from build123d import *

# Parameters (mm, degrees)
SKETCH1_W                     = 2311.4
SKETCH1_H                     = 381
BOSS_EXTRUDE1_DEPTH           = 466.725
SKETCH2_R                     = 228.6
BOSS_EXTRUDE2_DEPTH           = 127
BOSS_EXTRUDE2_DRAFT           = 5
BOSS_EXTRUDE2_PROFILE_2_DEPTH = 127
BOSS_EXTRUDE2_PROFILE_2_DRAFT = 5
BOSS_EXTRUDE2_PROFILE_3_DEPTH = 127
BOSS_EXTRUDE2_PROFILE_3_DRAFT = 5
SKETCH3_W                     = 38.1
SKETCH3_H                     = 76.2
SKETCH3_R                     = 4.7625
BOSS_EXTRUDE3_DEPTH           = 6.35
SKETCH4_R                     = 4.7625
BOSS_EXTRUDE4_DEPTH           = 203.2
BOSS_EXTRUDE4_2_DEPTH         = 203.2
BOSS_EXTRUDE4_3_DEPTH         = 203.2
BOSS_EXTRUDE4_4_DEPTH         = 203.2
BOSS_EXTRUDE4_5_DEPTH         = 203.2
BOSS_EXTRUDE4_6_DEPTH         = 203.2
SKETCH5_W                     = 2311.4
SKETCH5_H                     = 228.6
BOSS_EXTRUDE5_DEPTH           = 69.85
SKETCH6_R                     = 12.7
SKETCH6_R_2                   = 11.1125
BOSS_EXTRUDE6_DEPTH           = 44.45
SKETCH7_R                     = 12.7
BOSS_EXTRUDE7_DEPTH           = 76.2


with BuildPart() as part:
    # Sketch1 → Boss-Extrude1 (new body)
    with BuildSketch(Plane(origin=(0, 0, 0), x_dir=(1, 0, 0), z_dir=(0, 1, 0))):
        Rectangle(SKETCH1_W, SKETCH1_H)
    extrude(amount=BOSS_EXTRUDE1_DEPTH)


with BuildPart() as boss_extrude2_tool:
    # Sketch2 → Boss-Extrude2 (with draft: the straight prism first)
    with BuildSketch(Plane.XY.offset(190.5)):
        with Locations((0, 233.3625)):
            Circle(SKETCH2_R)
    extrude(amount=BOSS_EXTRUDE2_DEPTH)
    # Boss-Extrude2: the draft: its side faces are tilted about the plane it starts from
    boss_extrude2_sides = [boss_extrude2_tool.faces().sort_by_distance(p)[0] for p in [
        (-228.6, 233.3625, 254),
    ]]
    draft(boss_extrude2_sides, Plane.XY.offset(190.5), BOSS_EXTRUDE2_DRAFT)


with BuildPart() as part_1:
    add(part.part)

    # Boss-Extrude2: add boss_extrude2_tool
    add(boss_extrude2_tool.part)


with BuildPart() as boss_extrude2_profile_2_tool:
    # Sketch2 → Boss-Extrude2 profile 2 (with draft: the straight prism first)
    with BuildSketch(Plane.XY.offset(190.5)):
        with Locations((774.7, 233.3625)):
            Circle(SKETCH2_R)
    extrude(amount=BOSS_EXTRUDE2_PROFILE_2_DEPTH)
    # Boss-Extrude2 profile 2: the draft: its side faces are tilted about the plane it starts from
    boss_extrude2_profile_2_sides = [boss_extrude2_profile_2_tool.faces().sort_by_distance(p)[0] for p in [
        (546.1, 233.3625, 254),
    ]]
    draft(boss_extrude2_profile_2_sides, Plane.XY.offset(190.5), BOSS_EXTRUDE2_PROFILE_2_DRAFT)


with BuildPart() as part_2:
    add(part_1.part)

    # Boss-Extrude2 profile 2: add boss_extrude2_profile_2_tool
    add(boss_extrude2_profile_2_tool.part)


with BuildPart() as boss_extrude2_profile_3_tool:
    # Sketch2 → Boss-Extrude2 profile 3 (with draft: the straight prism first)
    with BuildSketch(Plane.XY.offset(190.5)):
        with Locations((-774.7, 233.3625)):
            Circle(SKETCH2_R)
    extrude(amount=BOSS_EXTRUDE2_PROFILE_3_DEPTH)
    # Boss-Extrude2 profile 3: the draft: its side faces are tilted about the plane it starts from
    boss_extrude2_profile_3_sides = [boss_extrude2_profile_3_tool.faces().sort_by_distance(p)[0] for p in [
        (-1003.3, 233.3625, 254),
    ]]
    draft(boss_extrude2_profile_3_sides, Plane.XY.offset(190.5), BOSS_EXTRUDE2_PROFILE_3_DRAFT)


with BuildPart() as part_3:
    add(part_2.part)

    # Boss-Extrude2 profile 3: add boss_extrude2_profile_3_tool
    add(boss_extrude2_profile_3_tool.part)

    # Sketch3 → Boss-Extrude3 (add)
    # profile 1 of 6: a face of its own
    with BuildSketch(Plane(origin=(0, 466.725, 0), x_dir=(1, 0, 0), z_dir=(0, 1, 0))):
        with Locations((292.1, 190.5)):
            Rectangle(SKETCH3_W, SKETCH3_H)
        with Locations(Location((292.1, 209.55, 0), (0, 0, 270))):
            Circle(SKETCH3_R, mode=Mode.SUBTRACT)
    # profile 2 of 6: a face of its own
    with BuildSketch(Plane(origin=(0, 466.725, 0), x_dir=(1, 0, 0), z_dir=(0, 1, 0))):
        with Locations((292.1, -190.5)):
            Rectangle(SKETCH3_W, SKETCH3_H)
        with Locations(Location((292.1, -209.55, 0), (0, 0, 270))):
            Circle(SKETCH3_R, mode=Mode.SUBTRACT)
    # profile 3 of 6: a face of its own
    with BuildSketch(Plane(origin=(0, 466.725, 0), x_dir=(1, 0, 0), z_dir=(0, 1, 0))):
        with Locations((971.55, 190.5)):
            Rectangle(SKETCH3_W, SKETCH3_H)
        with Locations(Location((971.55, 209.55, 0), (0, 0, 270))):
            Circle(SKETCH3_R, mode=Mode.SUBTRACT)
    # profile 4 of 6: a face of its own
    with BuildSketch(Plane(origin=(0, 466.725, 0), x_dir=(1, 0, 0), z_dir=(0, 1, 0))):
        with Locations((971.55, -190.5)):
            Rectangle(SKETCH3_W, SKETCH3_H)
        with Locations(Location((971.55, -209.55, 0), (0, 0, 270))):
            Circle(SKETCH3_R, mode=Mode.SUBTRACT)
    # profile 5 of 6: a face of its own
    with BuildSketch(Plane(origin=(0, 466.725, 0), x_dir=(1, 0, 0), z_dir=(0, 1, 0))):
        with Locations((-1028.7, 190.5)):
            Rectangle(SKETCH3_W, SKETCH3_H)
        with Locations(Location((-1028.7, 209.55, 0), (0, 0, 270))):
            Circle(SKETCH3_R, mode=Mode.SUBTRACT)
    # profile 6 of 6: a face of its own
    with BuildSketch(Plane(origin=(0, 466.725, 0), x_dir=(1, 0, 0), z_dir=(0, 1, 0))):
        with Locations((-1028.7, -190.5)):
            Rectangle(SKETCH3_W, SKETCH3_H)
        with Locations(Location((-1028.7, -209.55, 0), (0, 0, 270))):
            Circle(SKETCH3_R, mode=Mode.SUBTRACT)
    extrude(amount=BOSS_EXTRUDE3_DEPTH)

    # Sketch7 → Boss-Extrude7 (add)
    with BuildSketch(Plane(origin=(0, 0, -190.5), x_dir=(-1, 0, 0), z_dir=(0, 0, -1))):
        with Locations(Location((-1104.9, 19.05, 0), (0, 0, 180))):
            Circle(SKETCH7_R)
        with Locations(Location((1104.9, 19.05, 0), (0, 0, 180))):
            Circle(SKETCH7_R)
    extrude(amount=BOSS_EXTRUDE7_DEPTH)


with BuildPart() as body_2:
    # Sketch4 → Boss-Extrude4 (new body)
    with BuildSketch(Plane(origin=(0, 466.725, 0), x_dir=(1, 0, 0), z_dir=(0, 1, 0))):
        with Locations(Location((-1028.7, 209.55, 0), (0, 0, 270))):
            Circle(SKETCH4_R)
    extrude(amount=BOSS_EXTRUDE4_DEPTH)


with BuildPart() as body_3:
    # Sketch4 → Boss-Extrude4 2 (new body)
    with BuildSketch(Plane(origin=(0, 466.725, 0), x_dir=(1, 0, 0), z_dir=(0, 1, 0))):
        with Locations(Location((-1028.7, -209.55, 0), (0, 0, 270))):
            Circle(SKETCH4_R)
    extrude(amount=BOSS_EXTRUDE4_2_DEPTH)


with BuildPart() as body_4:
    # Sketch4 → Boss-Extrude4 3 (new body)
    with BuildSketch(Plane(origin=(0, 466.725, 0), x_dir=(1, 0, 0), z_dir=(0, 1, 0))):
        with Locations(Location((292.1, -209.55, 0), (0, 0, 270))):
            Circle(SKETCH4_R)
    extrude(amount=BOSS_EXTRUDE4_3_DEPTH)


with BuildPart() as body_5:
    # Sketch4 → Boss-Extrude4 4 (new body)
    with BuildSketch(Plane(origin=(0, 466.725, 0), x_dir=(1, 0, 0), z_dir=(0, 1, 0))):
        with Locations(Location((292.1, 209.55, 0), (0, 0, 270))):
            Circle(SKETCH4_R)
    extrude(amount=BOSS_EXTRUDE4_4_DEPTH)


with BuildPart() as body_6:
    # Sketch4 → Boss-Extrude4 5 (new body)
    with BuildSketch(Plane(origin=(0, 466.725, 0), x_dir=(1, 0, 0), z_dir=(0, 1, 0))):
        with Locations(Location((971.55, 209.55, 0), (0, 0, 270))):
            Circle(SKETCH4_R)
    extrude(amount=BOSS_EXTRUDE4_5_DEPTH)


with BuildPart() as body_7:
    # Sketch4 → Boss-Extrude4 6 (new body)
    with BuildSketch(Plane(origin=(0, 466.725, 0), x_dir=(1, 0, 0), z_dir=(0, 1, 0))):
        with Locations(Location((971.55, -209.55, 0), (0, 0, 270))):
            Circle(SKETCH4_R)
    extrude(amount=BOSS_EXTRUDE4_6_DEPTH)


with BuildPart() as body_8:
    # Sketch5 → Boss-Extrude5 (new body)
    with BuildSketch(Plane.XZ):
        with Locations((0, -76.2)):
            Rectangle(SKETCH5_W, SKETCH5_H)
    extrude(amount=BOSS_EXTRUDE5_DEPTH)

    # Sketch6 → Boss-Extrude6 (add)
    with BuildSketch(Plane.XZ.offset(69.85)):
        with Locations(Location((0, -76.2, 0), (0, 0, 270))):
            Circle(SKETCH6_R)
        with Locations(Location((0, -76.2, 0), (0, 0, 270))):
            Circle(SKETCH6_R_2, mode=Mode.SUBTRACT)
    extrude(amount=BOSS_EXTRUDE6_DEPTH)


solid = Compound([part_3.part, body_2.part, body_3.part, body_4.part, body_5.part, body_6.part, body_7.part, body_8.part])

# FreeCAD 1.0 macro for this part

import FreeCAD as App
import Part
import Sketcher
Q = App.Units.Quantity


def faces_at(feature, points):
    """Names of the faces that lie closest to the given points."""
    faces = feature.Shape.Faces
    near = lambda p: min(range(len(faces)), key=lambda i: faces[i].distToShape(Part.Vertex(*p))[0])
    return sorted({f"Face{near(p) + 1}" for p in points})

doc = App.newDocument("Part")
body = doc.addObject("PartDesign::Body", "Body")

# Sketch on XZ plane
sketch1 = doc.addObject("Sketcher::SketchObject", "Sketch")
body.addObject(sketch1)
sketch1.AttachmentSupport = (doc.XZ_Plane, [""])
sketch1.MapMode = "FlatFace"
sketch1.addGeometry(Part.LineSegment(App.Vector(-1156, -190, 0), App.Vector(-1156, 190, 0)), False)
sketch1.addGeometry(Part.LineSegment(App.Vector(-1156, 190, 0), App.Vector(1156, 190, 0)), False)
sketch1.addGeometry(Part.LineSegment(App.Vector(1156, 190, 0), App.Vector(1156, -190, 0)), False)
sketch1.addGeometry(Part.LineSegment(App.Vector(1156, -190, 0), App.Vector(-1156, -190, 0)), False)
sketch1.addConstraint(Sketcher.Constraint("Coincident", 0, 2, 1, 1))
sketch1.addConstraint(Sketcher.Constraint("Coincident", 1, 2, 2, 1))
sketch1.addConstraint(Sketcher.Constraint("Coincident", 2, 2, 3, 1))
sketch1.addConstraint(Sketcher.Constraint("Coincident", 3, 2, 0, 1))
sketch1.addConstraint(Sketcher.Constraint("Vertical", 0))
sketch1.addConstraint(Sketcher.Constraint("Horizontal", 1))
sketch1.addConstraint(Sketcher.Constraint("Vertical", 2))
sketch1.addConstraint(Sketcher.Constraint("Horizontal", 3))
sketch1.addConstraint(Sketcher.Constraint("Symmetric", 0, 2, 2, 2, -1, 1))
sketch1.addConstraint(Sketcher.Constraint("DistanceX", 1, 1, 1, 2, Q("91 in")))
sketch1.addConstraint(Sketcher.Constraint("DistanceY", 0, 1, 0, 2, Q("15 in")))
pad1 = doc.addObject("PartDesign::Pad", "Pad")
body.addObject(pad1)
pad1.Profile = sketch1
pad1.Length = Q("18.375 in")
pad1.Reversed = True
body2 = doc.addObject("PartDesign::Body", "Body001")

# Sketch on XY plane
sketch2 = doc.addObject("Sketcher::SketchObject", "Sketch001")
body2.addObject(sketch2)
sketch2.AttachmentSupport = (doc.getObject("XY_Plane001"), [""])
sketch2.MapMode = "FlatFace"
sketch2.AttachmentOffset = App.Placement(App.Vector(0, 0, 7.5 * 25.4), App.Rotation())
sketch2.addGeometry(Part.Circle(App.Vector(0, 233, 0), App.Vector(0, 0, 1), 229), False)
sketch2.addConstraint(Sketcher.Constraint("PointOnObject", 0, 3, -2))
sketch2.addConstraint(Sketcher.Constraint("Diameter", 0, Q("18 in")))
sketch2.addConstraint(Sketcher.Constraint("DistanceY", -1, 1, 0, 3, Q("9.1875 in")))
pad2 = doc.addObject("PartDesign::Pad", "Pad001")
body2.addObject(pad2)
pad2.Profile = sketch2
pad2.Length = Q("5 in")
doc.recompute()

datumplane = doc.addObject("PartDesign::Plane", "DatumPlane")
body2.addObject(datumplane)
datumplane.AttachmentSupport = (doc.getObject("XY_Plane001"), [""])
datumplane.MapMode = "FlatFace"
datumplane.AttachmentOffset = App.Placement(App.Vector(0, 0, 7.5 * 25.4), App.Rotation())
draft = doc.addObject("PartDesign::Draft", "Draft")
body2.addObject(draft)
draft.Base = (pad2, faces_at(pad2, [(-228.6, 233.363, 254)]))
draft.NeutralPlane = (datumplane, [""])
draft.Angle = 5
draft.Reversed = False
doc.recompute()

boolean = doc.addObject("PartDesign::Boolean", "Boolean")
body.addObject(boolean)
boolean.Type = "Fuse"
boolean.addObjects([body2])
body3 = doc.addObject("PartDesign::Body", "Body002")

# Sketch on XY plane
sketch3 = doc.addObject("Sketcher::SketchObject", "Sketch002")
body3.addObject(sketch3)
sketch3.AttachmentSupport = (doc.getObject("XY_Plane002"), [""])
sketch3.MapMode = "FlatFace"
sketch3.AttachmentOffset = App.Placement(App.Vector(0, 0, 7.5 * 25.4), App.Rotation())
sketch3.addGeometry(Part.Circle(App.Vector(775, 233, 0), App.Vector(0, 0, 1), 229), False)
sketch3.addConstraint(Sketcher.Constraint("Diameter", 0, Q("18 in")))
sketch3.addConstraint(Sketcher.Constraint("DistanceX", -1, 1, 0, 3, Q("30.5 in")))
sketch3.addConstraint(Sketcher.Constraint("DistanceY", -1, 1, 0, 3, Q("9.1875 in")))
pad3 = doc.addObject("PartDesign::Pad", "Pad002")
body3.addObject(pad3)
pad3.Profile = sketch3
pad3.Length = Q("5 in")
doc.recompute()

datumplane2 = doc.addObject("PartDesign::Plane", "DatumPlane001")
body3.addObject(datumplane2)
datumplane2.AttachmentSupport = (doc.getObject("XY_Plane002"), [""])
datumplane2.MapMode = "FlatFace"
datumplane2.AttachmentOffset = App.Placement(App.Vector(0, 0, 7.5 * 25.4), App.Rotation())
draft2 = doc.addObject("PartDesign::Draft", "Draft001")
body3.addObject(draft2)
draft2.Base = (pad3, faces_at(pad3, [(546.1, 233.363, 254)]))
draft2.NeutralPlane = (datumplane2, [""])
draft2.Angle = 5
draft2.Reversed = False
doc.recompute()

boolean2 = doc.addObject("PartDesign::Boolean", "Boolean001")
body.addObject(boolean2)
boolean2.Type = "Fuse"
boolean2.addObjects([body3])
body4 = doc.addObject("PartDesign::Body", "Body003")

# Sketch on XY plane
sketch4 = doc.addObject("Sketcher::SketchObject", "Sketch003")
body4.addObject(sketch4)
sketch4.AttachmentSupport = (doc.getObject("XY_Plane003"), [""])
sketch4.MapMode = "FlatFace"
sketch4.AttachmentOffset = App.Placement(App.Vector(0, 0, 7.5 * 25.4), App.Rotation())
sketch4.addGeometry(Part.Circle(App.Vector(-775, 233, 0), App.Vector(0, 0, 1), 229), False)
sketch4.addConstraint(Sketcher.Constraint("Diameter", 0, Q("18 in")))
sketch4.addConstraint(Sketcher.Constraint("DistanceX", 0, 3, -1, 1, Q("30.5 in")))
sketch4.addConstraint(Sketcher.Constraint("DistanceY", -1, 1, 0, 3, Q("9.1875 in")))
pad4 = doc.addObject("PartDesign::Pad", "Pad003")
body4.addObject(pad4)
pad4.Profile = sketch4
pad4.Length = Q("5 in")
doc.recompute()

datumplane3 = doc.addObject("PartDesign::Plane", "DatumPlane002")
body4.addObject(datumplane3)
datumplane3.AttachmentSupport = (doc.getObject("XY_Plane003"), [""])
datumplane3.MapMode = "FlatFace"
datumplane3.AttachmentOffset = App.Placement(App.Vector(0, 0, 7.5 * 25.4), App.Rotation())
draft3 = doc.addObject("PartDesign::Draft", "Draft002")
body4.addObject(draft3)
draft3.Base = (pad4, faces_at(pad4, [(-1003.3, 233.363, 254)]))
draft3.NeutralPlane = (datumplane3, [""])
draft3.Angle = 5
draft3.Reversed = False
doc.recompute()

boolean3 = doc.addObject("PartDesign::Boolean", "Boolean002")
body.addObject(boolean3)
boolean3.Type = "Fuse"
boolean3.addObjects([body4])

# Sketch on XZ plane
sketch5 = doc.addObject("Sketcher::SketchObject", "Sketch004")
body.addObject(sketch5)
sketch5.AttachmentSupport = (doc.XZ_Plane, [""])
sketch5.MapMode = "FlatFace"
sketch5.AttachmentOffset = App.Placement(App.Vector(0, 0, -18.375 * 25.4), App.Rotation())
sketch5.addGeometry(Part.LineSegment(App.Vector(273.1, -228.6, 0), App.Vector(273.1, -152.4, 0)), False)
sketch5.addGeometry(Part.LineSegment(App.Vector(273.1, -152.4, 0), App.Vector(311.1, -152.4, 0)), False)
sketch5.addGeometry(Part.LineSegment(App.Vector(311.1, -152.4, 0), App.Vector(311.1, -228.6, 0)), False)
sketch5.addGeometry(Part.LineSegment(App.Vector(311.1, -228.6, 0), App.Vector(273.1, -228.6, 0)), False)
sketch5.addGeometry(Part.Circle(App.Vector(292.1, -209.6, 0), App.Vector(0, 0, 1), 4.8), False)
sketch5.addGeometry(Part.LineSegment(App.Vector(273.1, 152.4, 0), App.Vector(273.1, 228.6, 0)), False)
sketch5.addGeometry(Part.LineSegment(App.Vector(273.1, 228.6, 0), App.Vector(311.1, 228.6, 0)), False)
sketch5.addGeometry(Part.LineSegment(App.Vector(311.1, 228.6, 0), App.Vector(311.1, 152.4, 0)), False)
sketch5.addGeometry(Part.LineSegment(App.Vector(311.1, 152.4, 0), App.Vector(273.1, 152.4, 0)), False)
sketch5.addGeometry(Part.Circle(App.Vector(292.1, 209.6, 0), App.Vector(0, 0, 1), 4.8), False)
sketch5.addGeometry(Part.LineSegment(App.Vector(952.5, -228.6, 0), App.Vector(952.5, -152.4, 0)), False)
sketch5.addGeometry(Part.LineSegment(App.Vector(952.5, -152.4, 0), App.Vector(990.6, -152.4, 0)), False)
sketch5.addGeometry(Part.LineSegment(App.Vector(990.6, -152.4, 0), App.Vector(990.6, -228.6, 0)), False)
sketch5.addGeometry(Part.LineSegment(App.Vector(990.6, -228.6, 0), App.Vector(952.5, -228.6, 0)), False)
sketch5.addGeometry(Part.Circle(App.Vector(971.5, -209.6, 0), App.Vector(0, 0, 1), 4.8), False)
sketch5.addGeometry(Part.LineSegment(App.Vector(952.5, 152.4, 0), App.Vector(952.5, 228.6, 0)), False)
sketch5.addGeometry(Part.LineSegment(App.Vector(952.5, 228.6, 0), App.Vector(990.6, 228.6, 0)), False)
sketch5.addGeometry(Part.LineSegment(App.Vector(990.6, 228.6, 0), App.Vector(990.6, 152.4, 0)), False)
sketch5.addGeometry(Part.LineSegment(App.Vector(990.6, 152.4, 0), App.Vector(952.5, 152.4, 0)), False)
sketch5.addGeometry(Part.Circle(App.Vector(971.5, 209.6, 0), App.Vector(0, 0, 1), 4.8), False)
sketch5.addGeometry(Part.LineSegment(App.Vector(-1047.8, -228.6, 0), App.Vector(-1047.8, -152.4, 0)), False)
sketch5.addGeometry(Part.LineSegment(App.Vector(-1047.8, -152.4, 0), App.Vector(-1009.6, -152.4, 0)), False)
sketch5.addGeometry(Part.LineSegment(App.Vector(-1009.6, -152.4, 0), App.Vector(-1009.6, -228.6, 0)), False)
sketch5.addGeometry(Part.LineSegment(App.Vector(-1009.6, -228.6, 0), App.Vector(-1047.8, -228.6, 0)), False)
sketch5.addGeometry(Part.Circle(App.Vector(-1028.7, -209.6, 0), App.Vector(0, 0, 1), 4.8), False)
sketch5.addGeometry(Part.LineSegment(App.Vector(-1047.8, 152.4, 0), App.Vector(-1047.8, 228.6, 0)), False)
sketch5.addGeometry(Part.LineSegment(App.Vector(-1047.8, 228.6, 0), App.Vector(-1009.6, 228.6, 0)), False)
sketch5.addGeometry(Part.LineSegment(App.Vector(-1009.6, 228.6, 0), App.Vector(-1009.6, 152.4, 0)), False)
sketch5.addGeometry(Part.LineSegment(App.Vector(-1009.6, 152.4, 0), App.Vector(-1047.8, 152.4, 0)), False)
sketch5.addGeometry(Part.Circle(App.Vector(-1028.7, 209.6, 0), App.Vector(0, 0, 1), 4.8), False)
sketch5.addConstraint(Sketcher.Constraint("Coincident", 0, 2, 1, 1))
sketch5.addConstraint(Sketcher.Constraint("Coincident", 1, 2, 2, 1))
sketch5.addConstraint(Sketcher.Constraint("Coincident", 2, 2, 3, 1))
sketch5.addConstraint(Sketcher.Constraint("Coincident", 3, 2, 0, 1))
sketch5.addConstraint(Sketcher.Constraint("Coincident", 5, 2, 6, 1))
sketch5.addConstraint(Sketcher.Constraint("Coincident", 6, 2, 7, 1))
sketch5.addConstraint(Sketcher.Constraint("Coincident", 7, 2, 8, 1))
sketch5.addConstraint(Sketcher.Constraint("Coincident", 8, 2, 5, 1))
sketch5.addConstraint(Sketcher.Constraint("Coincident", 10, 2, 11, 1))
sketch5.addConstraint(Sketcher.Constraint("Coincident", 11, 2, 12, 1))
sketch5.addConstraint(Sketcher.Constraint("Coincident", 12, 2, 13, 1))
sketch5.addConstraint(Sketcher.Constraint("Coincident", 13, 2, 10, 1))
sketch5.addConstraint(Sketcher.Constraint("Coincident", 15, 2, 16, 1))
sketch5.addConstraint(Sketcher.Constraint("Coincident", 16, 2, 17, 1))
sketch5.addConstraint(Sketcher.Constraint("Coincident", 17, 2, 18, 1))
sketch5.addConstraint(Sketcher.Constraint("Coincident", 18, 2, 15, 1))
sketch5.addConstraint(Sketcher.Constraint("Coincident", 20, 2, 21, 1))
sketch5.addConstraint(Sketcher.Constraint("Coincident", 21, 2, 22, 1))
sketch5.addConstraint(Sketcher.Constraint("Coincident", 22, 2, 23, 1))
sketch5.addConstraint(Sketcher.Constraint("Coincident", 23, 2, 20, 1))
sketch5.addConstraint(Sketcher.Constraint("Coincident", 25, 2, 26, 1))
sketch5.addConstraint(Sketcher.Constraint("Coincident", 26, 2, 27, 1))
sketch5.addConstraint(Sketcher.Constraint("Coincident", 27, 2, 28, 1))
sketch5.addConstraint(Sketcher.Constraint("Coincident", 28, 2, 25, 1))
sketch5.addConstraint(Sketcher.Constraint("Vertical", 0))
sketch5.addConstraint(Sketcher.Constraint("Horizontal", 1))
sketch5.addConstraint(Sketcher.Constraint("Vertical", 2))
sketch5.addConstraint(Sketcher.Constraint("Horizontal", 3))
sketch5.addConstraint(Sketcher.Constraint("Vertical", 5))
sketch5.addConstraint(Sketcher.Constraint("Horizontal", 6))
sketch5.addConstraint(Sketcher.Constraint("Vertical", 7))
sketch5.addConstraint(Sketcher.Constraint("Horizontal", 8))
sketch5.addConstraint(Sketcher.Constraint("Vertical", 10))
sketch5.addConstraint(Sketcher.Constraint("Horizontal", 11))
sketch5.addConstraint(Sketcher.Constraint("Vertical", 12))
sketch5.addConstraint(Sketcher.Constraint("Horizontal", 13))
sketch5.addConstraint(Sketcher.Constraint("Vertical", 15))
sketch5.addConstraint(Sketcher.Constraint("Horizontal", 16))
sketch5.addConstraint(Sketcher.Constraint("Vertical", 17))
sketch5.addConstraint(Sketcher.Constraint("Horizontal", 18))
sketch5.addConstraint(Sketcher.Constraint("Vertical", 20))
sketch5.addConstraint(Sketcher.Constraint("Horizontal", 21))
sketch5.addConstraint(Sketcher.Constraint("Vertical", 22))
sketch5.addConstraint(Sketcher.Constraint("Horizontal", 23))
sketch5.addConstraint(Sketcher.Constraint("Vertical", 25))
sketch5.addConstraint(Sketcher.Constraint("Horizontal", 26))
sketch5.addConstraint(Sketcher.Constraint("Vertical", 27))
sketch5.addConstraint(Sketcher.Constraint("Horizontal", 28))
sketch5.addConstraint(Sketcher.Constraint("Equal", 4, 9))
sketch5.addConstraint(Sketcher.Constraint("Equal", 9, 14))
sketch5.addConstraint(Sketcher.Constraint("Equal", 14, 19))
sketch5.addConstraint(Sketcher.Constraint("Equal", 19, 24))
sketch5.addConstraint(Sketcher.Constraint("Equal", 24, 29))
sketch5.addConstraint(Sketcher.Constraint("Symmetric", 4, 3, 9, 3, -1))
sketch5.addConstraint(Sketcher.Constraint("Symmetric", 14, 3, 19, 3, -1))
sketch5.addConstraint(Sketcher.Constraint("Symmetric", 24, 3, 29, 3, -1))
sketch5.addConstraint(Sketcher.Constraint("Symmetric", 3, 2, 5, 2, -1))
sketch5.addConstraint(Sketcher.Constraint("Symmetric", 1, 2, 7, 2, -1))
sketch5.addConstraint(Sketcher.Constraint("Symmetric", 13, 2, 15, 2, -1))
sketch5.addConstraint(Sketcher.Constraint("Symmetric", 11, 2, 17, 2, -1))
sketch5.addConstraint(Sketcher.Constraint("Symmetric", 23, 2, 25, 2, -1))
sketch5.addConstraint(Sketcher.Constraint("Symmetric", 21, 2, 27, 2, -1))
sketch5.addConstraint(Sketcher.Constraint("Horizontal", 4, 3, 14, 3))
sketch5.addConstraint(Sketcher.Constraint("Horizontal", 14, 3, 24, 3))
sketch5.addConstraint(Sketcher.Constraint("Horizontal", 1, 2, 10, 2))
sketch5.addConstraint(Sketcher.Constraint("Horizontal", 3, 2, 12, 2))
sketch5.addConstraint(Sketcher.Constraint("Horizontal", 11, 2, 20, 2))
sketch5.addConstraint(Sketcher.Constraint("Horizontal", 13, 2, 22, 2))
sketch5.addConstraint(Sketcher.Constraint("Equal", 8, 11))
sketch5.addConstraint(Sketcher.Constraint("Equal", 18, 21))
sketch5.addConstraint(Sketcher.Constraint("DistanceY", 0, 1, 0, 2, Q("3 in")))
sketch5.addConstraint(Sketcher.Constraint("Diameter", 4, Q("0.375 in")))
sketch5.addConstraint(Sketcher.Constraint("DistanceX", 1, 1, 1, 2, Q("1.5 in")))
sketch5.addConstraint(Sketcher.Constraint("DistanceY", 0, 2, -1, 1, Q("6 in")))
sketch5.addConstraint(Sketcher.Constraint("DistanceX", -1, 1, 11, 2, Q("39 in")))
sketch5.addConstraint(Sketcher.Constraint("DistanceX", 24, 3, 4, 3, Q("52 in")))
sketch5.addConstraint(Sketcher.Constraint("DistanceX", 1, 2, 14, 3, Q("26 in")))
sketch5.addConstraint(Sketcher.Constraint("DistanceX", 4, 3, 10, 2, Q("26 in")))
sketch5.addConstraint(Sketcher.Constraint("DistanceX", 20, 2, 0, 2, Q("52 in")))
sketch5.addConstraint(Sketcher.Constraint("DistanceY", 4, 3, 9, 3, Q("16.5 in")))
sketch5.addConstraint(Sketcher.Constraint("DistanceX", -1, 1, 14, 3, Q("38.25 in")))
pad5 = doc.addObject("PartDesign::Pad", "Pad004")
body.addObject(pad5)
pad5.Profile = sketch5
pad5.Length = Q("0.25 in")
pad5.Reversed = True

# Sketch on XY plane
sketch6 = doc.addObject("Sketcher::SketchObject", "Sketch005")
body.addObject(sketch6)
sketch6.AttachmentSupport = (doc.XY_Plane, [""])
sketch6.MapMode = "FlatFace"
sketch6.AttachmentOffset = App.Placement(App.Vector(0, 0, -7.5 * 25.4), App.Rotation())
sketch6.addGeometry(Part.Circle(App.Vector(1105, 19, 0), App.Vector(0, 0, 1), 13), False)
sketch6.addGeometry(Part.Circle(App.Vector(-1105, 19, 0), App.Vector(0, 0, 1), 13), False)
sketch6.addConstraint(Sketcher.Constraint("Equal", 0, 1))
sketch6.addConstraint(Sketcher.Constraint("Symmetric", 0, 3, 1, 3, -2))
sketch6.addConstraint(Sketcher.Constraint("Diameter", 0, Q("1 in")))
sketch6.addConstraint(Sketcher.Constraint("DistanceX", 1, 3, 0, 3, Q("87 in")))
sketch6.addConstraint(Sketcher.Constraint("DistanceY", -1, 1, 0, 3, Q("0.75 in")))
pad6 = doc.addObject("PartDesign::Pad", "Pad005")
body.addObject(pad6)
pad6.Profile = sketch6
pad6.Length = Q("3 in")
pad6.Reversed = True
body5 = doc.addObject("PartDesign::Body", "Body004")

# Sketch on XZ plane
sketch7 = doc.addObject("Sketcher::SketchObject", "Sketch006")
body5.addObject(sketch7)
sketch7.AttachmentSupport = (doc.getObject("XZ_Plane004"), [""])
sketch7.MapMode = "FlatFace"
sketch7.AttachmentOffset = App.Placement(App.Vector(0, 0, -18.375 * 25.4), App.Rotation())
sketch7.addGeometry(Part.Circle(App.Vector(-1028.7, -209.6, 0), App.Vector(0, 0, 1), 4.8), False)
sketch7.addConstraint(Sketcher.Constraint("Diameter", 0, Q("0.375 in")))
sketch7.addConstraint(Sketcher.Constraint("DistanceX", 0, 3, -1, 1, Q("40.5 in")))
sketch7.addConstraint(Sketcher.Constraint("DistanceY", 0, 3, -1, 1, Q("8.25 in")))
pad7 = doc.addObject("PartDesign::Pad", "Pad006")
body5.addObject(pad7)
pad7.Profile = sketch7
pad7.Length = Q("8 in")
pad7.Reversed = True
body6 = doc.addObject("PartDesign::Body", "Body005")

# Sketch on XZ plane
sketch8 = doc.addObject("Sketcher::SketchObject", "Sketch007")
body6.addObject(sketch8)
sketch8.AttachmentSupport = (doc.getObject("XZ_Plane005"), [""])
sketch8.MapMode = "FlatFace"
sketch8.AttachmentOffset = App.Placement(App.Vector(0, 0, -18.375 * 25.4), App.Rotation())
sketch8.addGeometry(Part.Circle(App.Vector(-1028.7, 209.6, 0), App.Vector(0, 0, 1), 4.8), False)
sketch8.addConstraint(Sketcher.Constraint("Diameter", 0, Q("0.375 in")))
sketch8.addConstraint(Sketcher.Constraint("DistanceX", 0, 3, -1, 1, Q("40.5 in")))
sketch8.addConstraint(Sketcher.Constraint("DistanceY", -1, 1, 0, 3, Q("8.25 in")))
pad8 = doc.addObject("PartDesign::Pad", "Pad007")
body6.addObject(pad8)
pad8.Profile = sketch8
pad8.Length = Q("8 in")
pad8.Reversed = True
body7 = doc.addObject("PartDesign::Body", "Body006")

# Sketch on XZ plane
sketch9 = doc.addObject("Sketcher::SketchObject", "Sketch008")
body7.addObject(sketch9)
sketch9.AttachmentSupport = (doc.getObject("XZ_Plane006"), [""])
sketch9.MapMode = "FlatFace"
sketch9.AttachmentOffset = App.Placement(App.Vector(0, 0, -18.375 * 25.4), App.Rotation())
sketch9.addGeometry(Part.Circle(App.Vector(292.1, 209.6, 0), App.Vector(0, 0, 1), 4.8), False)
sketch9.addConstraint(Sketcher.Constraint("Diameter", 0, Q("0.375 in")))
sketch9.addConstraint(Sketcher.Constraint("DistanceX", -1, 1, 0, 3, Q("11.5 in")))
sketch9.addConstraint(Sketcher.Constraint("DistanceY", -1, 1, 0, 3, Q("8.25 in")))
pad9 = doc.addObject("PartDesign::Pad", "Pad008")
body7.addObject(pad9)
pad9.Profile = sketch9
pad9.Length = Q("8 in")
pad9.Reversed = True
body8 = doc.addObject("PartDesign::Body", "Body007")

# Sketch on XZ plane
sketch10 = doc.addObject("Sketcher::SketchObject", "Sketch009")
body8.addObject(sketch10)
sketch10.AttachmentSupport = (doc.getObject("XZ_Plane007"), [""])
sketch10.MapMode = "FlatFace"
sketch10.AttachmentOffset = App.Placement(App.Vector(0, 0, -18.375 * 25.4), App.Rotation())
sketch10.addGeometry(Part.Circle(App.Vector(292.1, -209.6, 0), App.Vector(0, 0, 1), 4.8), False)
sketch10.addConstraint(Sketcher.Constraint("Diameter", 0, Q("0.375 in")))
sketch10.addConstraint(Sketcher.Constraint("DistanceX", -1, 1, 0, 3, Q("11.5 in")))
sketch10.addConstraint(Sketcher.Constraint("DistanceY", 0, 3, -1, 1, Q("8.25 in")))
pad10 = doc.addObject("PartDesign::Pad", "Pad009")
body8.addObject(pad10)
pad10.Profile = sketch10
pad10.Length = Q("8 in")
pad10.Reversed = True
body9 = doc.addObject("PartDesign::Body", "Body008")

# Sketch on XZ plane
sketch11 = doc.addObject("Sketcher::SketchObject", "Sketch010")
body9.addObject(sketch11)
sketch11.AttachmentSupport = (doc.getObject("XZ_Plane008"), [""])
sketch11.MapMode = "FlatFace"
sketch11.AttachmentOffset = App.Placement(App.Vector(0, 0, -18.375 * 25.4), App.Rotation())
sketch11.addGeometry(Part.Circle(App.Vector(971.5, -209.6, 0), App.Vector(0, 0, 1), 4.8), False)
sketch11.addConstraint(Sketcher.Constraint("Diameter", 0, Q("0.375 in")))
sketch11.addConstraint(Sketcher.Constraint("DistanceX", -1, 1, 0, 3, Q("38.25 in")))
sketch11.addConstraint(Sketcher.Constraint("DistanceY", 0, 3, -1, 1, Q("8.25 in")))
pad11 = doc.addObject("PartDesign::Pad", "Pad010")
body9.addObject(pad11)
pad11.Profile = sketch11
pad11.Length = Q("8 in")
pad11.Reversed = True
body10 = doc.addObject("PartDesign::Body", "Body009")

# Sketch on XZ plane
sketch12 = doc.addObject("Sketcher::SketchObject", "Sketch011")
body10.addObject(sketch12)
sketch12.AttachmentSupport = (doc.getObject("XZ_Plane009"), [""])
sketch12.MapMode = "FlatFace"
sketch12.AttachmentOffset = App.Placement(App.Vector(0, 0, -18.375 * 25.4), App.Rotation())
sketch12.addGeometry(Part.Circle(App.Vector(971.5, 209.6, 0), App.Vector(0, 0, 1), 4.8), False)
sketch12.addConstraint(Sketcher.Constraint("Diameter", 0, Q("0.375 in")))
sketch12.addConstraint(Sketcher.Constraint("DistanceX", -1, 1, 0, 3, Q("38.25 in")))
sketch12.addConstraint(Sketcher.Constraint("DistanceY", -1, 1, 0, 3, Q("8.25 in")))
pad12 = doc.addObject("PartDesign::Pad", "Pad011")
body10.addObject(pad12)
pad12.Profile = sketch12
pad12.Length = Q("8 in")
pad12.Reversed = True
body11 = doc.addObject("PartDesign::Body", "Body010")

# Sketch on XZ plane
sketch13 = doc.addObject("Sketcher::SketchObject", "Sketch012")
body11.addObject(sketch13)
sketch13.AttachmentSupport = (doc.getObject("XZ_Plane010"), [""])
sketch13.MapMode = "FlatFace"
sketch13.addGeometry(Part.LineSegment(App.Vector(-1156, 38, 0), App.Vector(-1156, -190, 0)), False)
sketch13.addGeometry(Part.LineSegment(App.Vector(-1156, -190, 0), App.Vector(1156, -190, 0)), False)
sketch13.addGeometry(Part.LineSegment(App.Vector(1156, -190, 0), App.Vector(1156, 38, 0)), False)
sketch13.addGeometry(Part.LineSegment(App.Vector(1156, 38, 0), App.Vector(-1156, 38, 0)), False)
sketch13.addConstraint(Sketcher.Constraint("Coincident", 0, 2, 1, 1))
sketch13.addConstraint(Sketcher.Constraint("Coincident", 1, 2, 2, 1))
sketch13.addConstraint(Sketcher.Constraint("Coincident", 2, 2, 3, 1))
sketch13.addConstraint(Sketcher.Constraint("Coincident", 3, 2, 0, 1))
sketch13.addConstraint(Sketcher.Constraint("Vertical", 0))
sketch13.addConstraint(Sketcher.Constraint("Horizontal", 1))
sketch13.addConstraint(Sketcher.Constraint("Vertical", 2))
sketch13.addConstraint(Sketcher.Constraint("Horizontal", 3))
sketch13.addConstraint(Sketcher.Constraint("DistanceX", 1, 1, 1, 2, Q("91 in")))
sketch13.addConstraint(Sketcher.Constraint("DistanceY", 0, 2, 0, 1, Q("9 in")))
sketch13.addConstraint(Sketcher.Constraint("DistanceX", 0, 2, -1, 1, Q("45.5 in")))
sketch13.addConstraint(Sketcher.Constraint("DistanceY", 0, 2, -1, 1, Q("7.5 in")))
pad13 = doc.addObject("PartDesign::Pad", "Pad012")
body11.addObject(pad13)
pad13.Profile = sketch13
pad13.Length = Q("2.75 in")

# Sketch on XZ plane
sketch14 = doc.addObject("Sketcher::SketchObject", "Sketch013")
body11.addObject(sketch14)
sketch14.AttachmentSupport = (doc.getObject("XZ_Plane010"), [""])
sketch14.MapMode = "FlatFace"
sketch14.AttachmentOffset = App.Placement(App.Vector(0, 0, 2.75 * 25.4), App.Rotation())
sketch14.addGeometry(Part.Circle(App.Vector(0, -76, 0), App.Vector(0, 0, 1), 13), False)
sketch14.addGeometry(Part.Circle(App.Vector(0, -76, 0), App.Vector(0, 0, 1), 11), False)
sketch14.addConstraint(Sketcher.Constraint("Coincident", 1, 3, 0, 3))
sketch14.addConstraint(Sketcher.Constraint("PointOnObject", 0, 3, -2))
sketch14.addConstraint(Sketcher.Constraint("Diameter", 0, Q("1 in")))
sketch14.addConstraint(Sketcher.Constraint("Diameter", 1, Q("0.875 in")))
sketch14.addConstraint(Sketcher.Constraint("DistanceY", 0, 3, -1, 1, Q("3 in")))
pad14 = doc.addObject("PartDesign::Pad", "Pad013")
body11.addObject(pad14)
pad14.Profile = sketch14
pad14.Length = Q("1.75 in")

doc.recompute()
